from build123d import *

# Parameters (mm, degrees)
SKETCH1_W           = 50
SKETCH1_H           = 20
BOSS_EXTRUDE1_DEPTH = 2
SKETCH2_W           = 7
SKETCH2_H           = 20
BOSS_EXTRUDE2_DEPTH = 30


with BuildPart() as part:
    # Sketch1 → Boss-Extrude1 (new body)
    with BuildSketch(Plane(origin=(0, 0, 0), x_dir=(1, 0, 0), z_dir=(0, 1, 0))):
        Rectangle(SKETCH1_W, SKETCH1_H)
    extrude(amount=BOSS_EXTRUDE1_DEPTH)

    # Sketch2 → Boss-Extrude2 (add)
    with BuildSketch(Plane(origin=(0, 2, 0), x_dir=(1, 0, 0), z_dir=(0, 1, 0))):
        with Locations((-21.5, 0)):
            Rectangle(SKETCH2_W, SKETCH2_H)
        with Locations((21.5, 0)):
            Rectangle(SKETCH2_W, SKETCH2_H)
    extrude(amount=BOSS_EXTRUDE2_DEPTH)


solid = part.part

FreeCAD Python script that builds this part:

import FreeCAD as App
import Part
import Sketcher
Q = App.Units.Quantity


def add_polygon(sketch, points):
    """Adds a closed chain of lines whose ends are joined by coincident constraints."""
    first, n = sketch.GeometryCount, len(points)
    for a, b in zip(points, points[1:] + points[:1]):
        sketch.addGeometry(Part.LineSegment(App.Vector(*a, 0), App.Vector(*b, 0)), False)
    for i in range(n):
        sketch.addConstraint(Sketcher.Constraint("Coincident", first + i, 2, first + (i + 1) % n, 1))

doc = App.newDocument("Part")
params = doc.addObject("Spreadsheet::Sheet", "Params")
for row, (alias, value) in enumerate([
    ("sketch1_width", "50 mm"),
    ("sketch1_height", "20 mm"),
    ("pad1_length", "2 mm"),
    ("sketch2_width", "7 mm"),
    ("sketch2_height", "20 mm"),
    ("pad2_length", "30 mm"),
], start=1):
    params.set(f"A{row}", alias)
    params.set(f"B{row}", "=" + value)
    params.setAlias(f"B{row}", alias)

body = doc.addObject("PartDesign::Body", "Body")

# Sketch on XZ plane
sketch1 = doc.addObject("Sketcher::SketchObject", "Sketch")
body.addObject(sketch1)
sketch1.AttachmentSupport = (doc.XZ_Plane, [""])
sketch1.MapMode = "FlatFace"
add_polygon(sketch1, [(-25, -10), (-25, 10), (25, 10), (25, -10)])  # lines 0-3
sketch1.addConstraint([
    Sketcher.Constraint("Vertical", 0),
    Sketcher.Constraint("Horizontal", 1),
    Sketcher.Constraint("Vertical", 2),
    Sketcher.Constraint("Horizontal", 3),
    Sketcher.Constraint("Symmetric", 0, 2, 2, 2, -1, 1),
    Sketcher.Constraint("DistanceX", 1, 1, 1, 2, Q("50 mm")),
    Sketcher.Constraint("DistanceY", 0, 1, 0, 2, Q("20 mm")),
])
sketch1.setExpression("Constraints[9]", "Params.sketch1_width")
sketch1.setExpression("Constraints[10]", "Params.sketch1_height")
pad1 = doc.addObject("PartDesign::Pad", "Pad")
body.addObject(pad1)
pad1.Profile = sketch1
pad1.setExpression("Length", "Params.pad1_length")
pad1.Reversed = True

# Sketch on XZ plane
sketch2 = doc.addObject("Sketcher::SketchObject", "Sketch001")
body.addObject(sketch2)
sketch2.AttachmentSupport = (doc.XZ_Plane, [""])
sketch2.MapMode = "FlatFace"
sketch2.AttachmentOffset = App.Placement(App.Vector(0, 0, -2), App.Rotation())
add_polygon(sketch2, [(-25, -10), (-25, 10), (-18, 10), (-18, -10)])  # lines 0-3
add_polygon(sketch2, [(18, -10), (18, 10), (25, 10), (25, -10)])  # lines 4-7
sketch2.addConstraint([
    Sketcher.Constraint("Vertical", 0),
    Sketcher.Constraint("Horizontal", 1),
    Sketcher.Constraint("Vertical", 2),
    Sketcher.Constraint("Horizontal", 3),
    Sketcher.Constraint("Vertical", 4),
    Sketcher.Constraint("Horizontal", 5),
    Sketcher.Constraint("Vertical", 6),
    Sketcher.Constraint("Horizontal", 7),
    Sketcher.Constraint("Symmetric", 2, 2, 4, 2, -1, 1),
    Sketcher.Constraint("Symmetric", 0, 2, 6, 2, -1, 1),
    Sketcher.Constraint("Horizontal", 1, 2, 4, 2),
    Sketcher.Constraint("DistanceX", 1, 1, 1, 2, Q("7 mm")),
    Sketcher.Constraint("DistanceY", 0, 1, 0, 2, Q("20 mm")),
    Sketcher.Constraint("DistanceX", 0, 2, -1, 1, Q("25 mm")),
])
sketch2.setExpression("Constraints[19]", "Params.sketch2_width")
sketch2.setExpression("Constraints[20]", "Params.sketch2_height")
pad2 = doc.addObject("PartDesign::Pad", "Pad001")
body.addObject(pad2)
pad2.Profile = sketch2
pad2.setExpression("Length", "Params.pad2_length")
pad2.Reversed = True

doc.recompute()
